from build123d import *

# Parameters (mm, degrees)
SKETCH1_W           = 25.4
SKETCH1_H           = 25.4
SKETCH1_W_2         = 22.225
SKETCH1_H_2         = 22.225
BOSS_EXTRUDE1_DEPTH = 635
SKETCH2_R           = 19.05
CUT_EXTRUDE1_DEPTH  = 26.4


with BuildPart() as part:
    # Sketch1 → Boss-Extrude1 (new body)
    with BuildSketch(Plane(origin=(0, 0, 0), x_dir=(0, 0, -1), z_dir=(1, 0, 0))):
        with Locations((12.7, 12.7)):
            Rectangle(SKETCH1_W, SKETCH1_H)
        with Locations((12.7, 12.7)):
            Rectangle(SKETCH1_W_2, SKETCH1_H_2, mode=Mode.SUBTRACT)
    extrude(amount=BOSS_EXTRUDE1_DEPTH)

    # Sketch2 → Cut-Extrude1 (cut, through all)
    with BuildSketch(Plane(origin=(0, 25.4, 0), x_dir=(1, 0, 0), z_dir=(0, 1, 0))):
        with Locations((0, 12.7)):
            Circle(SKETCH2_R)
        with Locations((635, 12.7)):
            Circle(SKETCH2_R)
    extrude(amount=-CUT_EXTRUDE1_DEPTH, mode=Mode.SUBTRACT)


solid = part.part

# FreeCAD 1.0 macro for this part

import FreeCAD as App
import Part
import Sketcher
from FreeCAD import Vector
Q = App.Units.Quantity

doc = App.newDocument("Part")
params = doc.addObject("Spreadsheet::Sheet", "Params")
for row, (alias, value) in enumerate([
    ("sketch1_width", "1 in"),
    ("sketch1_width2", "0.875 in"),
    ("pad1_length", "25 in"),
    ("sketch2_diameter", "1.5 in"),
], start=1):
    params.set(f"A{row}", alias)
    params.set(f"B{row}", "=" + value)
    params.setAlias(f"B{row}", alias)

body = doc.addObject("PartDesign::Body", "Body")

sketch1 = doc.addObject("Sketcher::SketchObject", "Sketch")
body.addObject(sketch1)
sketch1.AttachmentSupport = (doc.YZ_Plane, [""])
sketch1.MapMode = "FlatFace"
sketch1.addGeometry(Part.LineSegment(Vector(25, 0, 0), Vector(0, 0, 0)), False)
sketch1.addGeometry(Part.LineSegment(Vector(0, 0, 0), Vector(0, -25, 0)), False)
sketch1.addGeometry(Part.LineSegment(Vector(0, -25, 0), Vector(25, -25, 0)), False)
sketch1.addGeometry(Part.LineSegment(Vector(25, -25, 0), Vector(25, 0, 0)), False)
sketch1.addGeometry(Part.LineSegment(Vector(2, -24, 0), Vector(2, -2, 0)), False)
sketch1.addGeometry(Part.LineSegment(Vector(2, -2, 0), Vector(24, -2, 0)), False)
sketch1.addGeometry(Part.LineSegment(Vector(24, -2, 0), Vector(24, -24, 0)), False)
sketch1.addGeometry(Part.LineSegment(Vector(24, -24, 0), Vector(2, -24, 0)), False)
sketch1.addConstraint(Sketcher.Constraint("Coincident", 0, 2, 1, 1))
sketch1.addConstraint(Sketcher.Constraint("Coincident", 1, 2, 2, 1))
sketch1.addConstraint(Sketcher.Constraint("Coincident", 2, 2, 3, 1))
sketch1.addConstraint(Sketcher.Constraint("Coincident", 3, 2, 0, 1))
sketch1.addConstraint(Sketcher.Constraint("Coincident", 4, 2, 5, 1))
sketch1.addConstraint(Sketcher.Constraint("Coincident", 5, 2, 6, 1))
sketch1.addConstraint(Sketcher.Constraint("Coincident", 6, 2, 7, 1))
sketch1.addConstraint(Sketcher.Constraint("Coincident", 7, 2, 4, 1))
sketch1.addConstraint(Sketcher.Constraint("Horizontal", 0))
sketch1.addConstraint(Sketcher.Constraint("Vertical", 1))
sketch1.addConstraint(Sketcher.Constraint("Horizontal", 2))
sketch1.addConstraint(Sketcher.Constraint("Vertical", 3))
sketch1.addConstraint(Sketcher.Constraint("Vertical", 4))
sketch1.addConstraint(Sketcher.Constraint("Horizontal", 5))
sketch1.addConstraint(Sketcher.Constraint("Vertical", 6))
sketch1.addConstraint(Sketcher.Constraint("Horizontal", 7))
sketch1.addConstraint(Sketcher.Constraint("Coincident", 0, 2, -1, 1))
sketch1.addConstraint(Sketcher.Constraint("Equal", 2, 1))
sketch1.addConstraint(Sketcher.Constraint("Equal", 7, 4))
sketch1.addConstraint(Sketcher.Constraint("DistanceX", 0, 2, 0, 1, Q("1 in")))
sketch1.addConstraint(Sketcher.Constraint("DistanceX", 5, 1, 5, 2, Q("0.875 in")))
sketch1.addConstraint(Sketcher.Constraint("DistanceX", -1, 1, 4, 2, Q("0.0625 in")))
sketch1.addConstraint(Sketcher.Constraint("DistanceY", 4, 2, -1, 1, Q("0.0625 in")))
sketch1.setExpression("Constraints[19]", "Params.sketch1_width")
sketch1.setExpression("Constraints[20]", "Params.sketch1_width2")
pad1 = doc.addObject("PartDesign::Pad", "Pad")
body.addObject(pad1)
pad1.Profile = sketch1
pad1.setExpression("Length", "Params.pad1_length")

sketch2 = doc.addObject("Sketcher::SketchObject", "Sketch001")
body.addObject(sketch2)
sketch2.AttachmentSupport = (doc.XZ_Plane, [""])
sketch2.MapMode = "FlatFace"
sketch2.AttachmentOffset = App.Placement(Vector(0, 0, -1 * 25.4), App.Rotation())
sketch2.addGeometry(Part.Circle(Vector(0, -13, 0), Vector(0, 0, 1), 19), False)
sketch2.addGeometry(Part.Circle(Vector(635, -13, 0), Vector(0, 0, 1), 19), False)
sketch2.addConstraint(Sketcher.Constraint("Equal", 0, 1))
sketch2.addConstraint(Sketcher.Constraint("PointOnObject", 0, 3, -2))
sketch2.addConstraint(Sketcher.Constraint("Horizontal", 0, 3, 1, 3))
sketch2.addConstraint(Sketcher.Constraint("Diameter", 0, Q("1.5 in")))
sketch2.addConstraint(Sketcher.Constraint("DistanceX", -1, 1, 1, 3, Q("25 in")))
sketch2.addConstraint(Sketcher.Constraint("DistanceY", 0, 3, -1, 1, Q("0.5 in")))
sketch2.setExpression("Constraints[3]", "Params.sketch2_diameter")
pocket1 = doc.addObject("PartDesign::Pocket", "Pocket")
body.addObject(pocket1)
pocket1.Profile = sketch2
pocket1.Type = "ThroughAll"
pocket1.Reversed = True

doc.recompute()
